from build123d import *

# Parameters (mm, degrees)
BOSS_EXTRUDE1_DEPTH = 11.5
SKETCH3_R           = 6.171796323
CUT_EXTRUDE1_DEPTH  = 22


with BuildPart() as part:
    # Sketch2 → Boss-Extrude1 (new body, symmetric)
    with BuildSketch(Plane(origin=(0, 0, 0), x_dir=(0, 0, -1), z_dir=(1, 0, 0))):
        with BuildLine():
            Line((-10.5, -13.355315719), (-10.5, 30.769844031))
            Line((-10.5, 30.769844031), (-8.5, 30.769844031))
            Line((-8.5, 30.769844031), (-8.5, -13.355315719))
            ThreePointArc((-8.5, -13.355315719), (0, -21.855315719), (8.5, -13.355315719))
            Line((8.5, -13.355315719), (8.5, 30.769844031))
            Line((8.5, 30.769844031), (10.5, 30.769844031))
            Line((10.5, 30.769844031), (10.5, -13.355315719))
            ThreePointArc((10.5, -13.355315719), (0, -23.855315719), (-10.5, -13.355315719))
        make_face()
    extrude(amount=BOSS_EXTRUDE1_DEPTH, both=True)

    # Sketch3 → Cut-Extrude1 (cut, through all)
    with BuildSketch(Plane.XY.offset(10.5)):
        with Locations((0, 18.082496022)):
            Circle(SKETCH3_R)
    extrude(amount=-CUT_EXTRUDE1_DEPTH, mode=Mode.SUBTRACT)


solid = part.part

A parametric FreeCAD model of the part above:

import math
import FreeCAD as App
import Part
import Sketcher

V = App.Vector

doc = App.newDocument("Part")
params = doc.addObject("Spreadsheet::Sheet", "Params")
for row, (alias, value) in enumerate([
    ("sketch1_radius", "10.5 mm"),
    ("sketch1_radius2", "8.5 mm"),
    ("pad1_length", "23 mm"),
], start=1):
    params.set(f"A{row}", alias)
    params.set(f"B{row}", "=" + value)
    params.setAlias(f"B{row}", alias)

body = doc.addObject("PartDesign::Body", "Body")

# Sketch on YZ plane
sketch1 = body.newObject("Sketcher::SketchObject", "Sketch")
sketch1.AttachmentSupport = (doc.getObject("YZ_Plane"), [""])
sketch1.MapMode = "FlatFace"
sketch1.addGeometry([
    Part.LineSegment(V(30.8, 10.5, 0), V(-13.4, 10.5, 0)),  # 0
    Part.ArcOfCircle(Part.Circle(V(-13.4, 0, 0), V(0, 0, 1), 10.5), math.radians(90), math.radians(270)),  # 1
    Part.LineSegment(V(-13.4, -10.5, 0), V(30.8, -10.5, 0)),  # 2
    Part.LineSegment(V(30.8, -10.5, 0), V(30.8, -8.5, 0)),  # 3
    Part.LineSegment(V(30.8, -8.5, 0), V(-13.4, -8.5, 0)),  # 4
    Part.ArcOfCircle(Part.Circle(V(-13.4, 0, 0), V(0, 0, 1), 8.5), math.radians(90), math.radians(270)),  # 5
    Part.LineSegment(V(-13.4, 8.5, 0), V(30.8, 8.5, 0)),  # 6
    Part.LineSegment(V(30.8, 8.5, 0), V(30.8, 10.5, 0)),  # 7
], False)
sketch1.addConstraint([
    Sketcher.Constraint("Tangent", 0, 2, 1, 1),
    Sketcher.Constraint("Tangent", 1, 2, 2, 1),
    Sketcher.Constraint("Coincident", 2, 2, 3, 1),
    Sketcher.Constraint("Coincident", 3, 2, 4, 1),
    Sketcher.Constraint("Tangent", 4, 2, 5, 2),
    Sketcher.Constraint("Tangent", 5, 1, 6, 1),
    Sketcher.Constraint("Coincident", 6, 2, 7, 1),
    Sketcher.Constraint("Coincident", 7, 2, 0, 1),
    Sketcher.Constraint("Horizontal", 0),
    Sketcher.Constraint("Horizontal", 2),
    Sketcher.Constraint("Vertical", 3),
    Sketcher.Constraint("Horizontal", 4),
    Sketcher.Constraint("Horizontal", 6),
    Sketcher.Constraint("Vertical", 7),
    Sketcher.Constraint("Coincident", 5, 3, 1, 3),
    Sketcher.Constraint("Symmetric", 3, 2, 6, 2, -1),
    Sketcher.Constraint("Radius", 1, 10.5),
    Sketcher.Constraint("Radius", 5, 8.5),
    Sketcher.Constraint("DistanceX", 0, 2, 0, 1, 44.12516),
    Sketcher.Constraint("DistanceX", 1, 3, -1, 1, 13.355316),
])
sketch1.setExpression("Constraints[16]", "Params.sketch1_radius")
sketch1.setExpression("Constraints[17]", "Params.sketch1_radius2")
pad1 = body.newObject("PartDesign::Pad", "Pad")
pad1.Profile = sketch1
pad1.setExpression("Length", "Params.pad1_length")
pad1.Midplane = True

# Sketch on XY plane
sketch2 = body.newObject("Sketcher::SketchObject", "Sketch001")
sketch2.AttachmentSupport = (doc.getObject("XY_Plane"), [""])
sketch2.MapMode = "FlatFace"
sketch2.AttachmentOffset = App.Placement(V(0, 0, 10.5), App.Rotation())
sketch2.addGeometry(Part.Circle(V(0, 18, 0), V(0, 0, 1), 6), False)
sketch2.addConstraint([
    Sketcher.Constraint("PointOnObject", 0, 3, -2),
    Sketcher.Constraint("Diameter", 0, 12.343593),
    Sketcher.Constraint("DistanceY", -1, 1, 0, 3, 18.082496),
])
pocket1 = body.newObject("PartDesign::Pocket", "Pocket")
pocket1.Profile = sketch2
pocket1.Type = "ThroughAll"

doc.recompute()
